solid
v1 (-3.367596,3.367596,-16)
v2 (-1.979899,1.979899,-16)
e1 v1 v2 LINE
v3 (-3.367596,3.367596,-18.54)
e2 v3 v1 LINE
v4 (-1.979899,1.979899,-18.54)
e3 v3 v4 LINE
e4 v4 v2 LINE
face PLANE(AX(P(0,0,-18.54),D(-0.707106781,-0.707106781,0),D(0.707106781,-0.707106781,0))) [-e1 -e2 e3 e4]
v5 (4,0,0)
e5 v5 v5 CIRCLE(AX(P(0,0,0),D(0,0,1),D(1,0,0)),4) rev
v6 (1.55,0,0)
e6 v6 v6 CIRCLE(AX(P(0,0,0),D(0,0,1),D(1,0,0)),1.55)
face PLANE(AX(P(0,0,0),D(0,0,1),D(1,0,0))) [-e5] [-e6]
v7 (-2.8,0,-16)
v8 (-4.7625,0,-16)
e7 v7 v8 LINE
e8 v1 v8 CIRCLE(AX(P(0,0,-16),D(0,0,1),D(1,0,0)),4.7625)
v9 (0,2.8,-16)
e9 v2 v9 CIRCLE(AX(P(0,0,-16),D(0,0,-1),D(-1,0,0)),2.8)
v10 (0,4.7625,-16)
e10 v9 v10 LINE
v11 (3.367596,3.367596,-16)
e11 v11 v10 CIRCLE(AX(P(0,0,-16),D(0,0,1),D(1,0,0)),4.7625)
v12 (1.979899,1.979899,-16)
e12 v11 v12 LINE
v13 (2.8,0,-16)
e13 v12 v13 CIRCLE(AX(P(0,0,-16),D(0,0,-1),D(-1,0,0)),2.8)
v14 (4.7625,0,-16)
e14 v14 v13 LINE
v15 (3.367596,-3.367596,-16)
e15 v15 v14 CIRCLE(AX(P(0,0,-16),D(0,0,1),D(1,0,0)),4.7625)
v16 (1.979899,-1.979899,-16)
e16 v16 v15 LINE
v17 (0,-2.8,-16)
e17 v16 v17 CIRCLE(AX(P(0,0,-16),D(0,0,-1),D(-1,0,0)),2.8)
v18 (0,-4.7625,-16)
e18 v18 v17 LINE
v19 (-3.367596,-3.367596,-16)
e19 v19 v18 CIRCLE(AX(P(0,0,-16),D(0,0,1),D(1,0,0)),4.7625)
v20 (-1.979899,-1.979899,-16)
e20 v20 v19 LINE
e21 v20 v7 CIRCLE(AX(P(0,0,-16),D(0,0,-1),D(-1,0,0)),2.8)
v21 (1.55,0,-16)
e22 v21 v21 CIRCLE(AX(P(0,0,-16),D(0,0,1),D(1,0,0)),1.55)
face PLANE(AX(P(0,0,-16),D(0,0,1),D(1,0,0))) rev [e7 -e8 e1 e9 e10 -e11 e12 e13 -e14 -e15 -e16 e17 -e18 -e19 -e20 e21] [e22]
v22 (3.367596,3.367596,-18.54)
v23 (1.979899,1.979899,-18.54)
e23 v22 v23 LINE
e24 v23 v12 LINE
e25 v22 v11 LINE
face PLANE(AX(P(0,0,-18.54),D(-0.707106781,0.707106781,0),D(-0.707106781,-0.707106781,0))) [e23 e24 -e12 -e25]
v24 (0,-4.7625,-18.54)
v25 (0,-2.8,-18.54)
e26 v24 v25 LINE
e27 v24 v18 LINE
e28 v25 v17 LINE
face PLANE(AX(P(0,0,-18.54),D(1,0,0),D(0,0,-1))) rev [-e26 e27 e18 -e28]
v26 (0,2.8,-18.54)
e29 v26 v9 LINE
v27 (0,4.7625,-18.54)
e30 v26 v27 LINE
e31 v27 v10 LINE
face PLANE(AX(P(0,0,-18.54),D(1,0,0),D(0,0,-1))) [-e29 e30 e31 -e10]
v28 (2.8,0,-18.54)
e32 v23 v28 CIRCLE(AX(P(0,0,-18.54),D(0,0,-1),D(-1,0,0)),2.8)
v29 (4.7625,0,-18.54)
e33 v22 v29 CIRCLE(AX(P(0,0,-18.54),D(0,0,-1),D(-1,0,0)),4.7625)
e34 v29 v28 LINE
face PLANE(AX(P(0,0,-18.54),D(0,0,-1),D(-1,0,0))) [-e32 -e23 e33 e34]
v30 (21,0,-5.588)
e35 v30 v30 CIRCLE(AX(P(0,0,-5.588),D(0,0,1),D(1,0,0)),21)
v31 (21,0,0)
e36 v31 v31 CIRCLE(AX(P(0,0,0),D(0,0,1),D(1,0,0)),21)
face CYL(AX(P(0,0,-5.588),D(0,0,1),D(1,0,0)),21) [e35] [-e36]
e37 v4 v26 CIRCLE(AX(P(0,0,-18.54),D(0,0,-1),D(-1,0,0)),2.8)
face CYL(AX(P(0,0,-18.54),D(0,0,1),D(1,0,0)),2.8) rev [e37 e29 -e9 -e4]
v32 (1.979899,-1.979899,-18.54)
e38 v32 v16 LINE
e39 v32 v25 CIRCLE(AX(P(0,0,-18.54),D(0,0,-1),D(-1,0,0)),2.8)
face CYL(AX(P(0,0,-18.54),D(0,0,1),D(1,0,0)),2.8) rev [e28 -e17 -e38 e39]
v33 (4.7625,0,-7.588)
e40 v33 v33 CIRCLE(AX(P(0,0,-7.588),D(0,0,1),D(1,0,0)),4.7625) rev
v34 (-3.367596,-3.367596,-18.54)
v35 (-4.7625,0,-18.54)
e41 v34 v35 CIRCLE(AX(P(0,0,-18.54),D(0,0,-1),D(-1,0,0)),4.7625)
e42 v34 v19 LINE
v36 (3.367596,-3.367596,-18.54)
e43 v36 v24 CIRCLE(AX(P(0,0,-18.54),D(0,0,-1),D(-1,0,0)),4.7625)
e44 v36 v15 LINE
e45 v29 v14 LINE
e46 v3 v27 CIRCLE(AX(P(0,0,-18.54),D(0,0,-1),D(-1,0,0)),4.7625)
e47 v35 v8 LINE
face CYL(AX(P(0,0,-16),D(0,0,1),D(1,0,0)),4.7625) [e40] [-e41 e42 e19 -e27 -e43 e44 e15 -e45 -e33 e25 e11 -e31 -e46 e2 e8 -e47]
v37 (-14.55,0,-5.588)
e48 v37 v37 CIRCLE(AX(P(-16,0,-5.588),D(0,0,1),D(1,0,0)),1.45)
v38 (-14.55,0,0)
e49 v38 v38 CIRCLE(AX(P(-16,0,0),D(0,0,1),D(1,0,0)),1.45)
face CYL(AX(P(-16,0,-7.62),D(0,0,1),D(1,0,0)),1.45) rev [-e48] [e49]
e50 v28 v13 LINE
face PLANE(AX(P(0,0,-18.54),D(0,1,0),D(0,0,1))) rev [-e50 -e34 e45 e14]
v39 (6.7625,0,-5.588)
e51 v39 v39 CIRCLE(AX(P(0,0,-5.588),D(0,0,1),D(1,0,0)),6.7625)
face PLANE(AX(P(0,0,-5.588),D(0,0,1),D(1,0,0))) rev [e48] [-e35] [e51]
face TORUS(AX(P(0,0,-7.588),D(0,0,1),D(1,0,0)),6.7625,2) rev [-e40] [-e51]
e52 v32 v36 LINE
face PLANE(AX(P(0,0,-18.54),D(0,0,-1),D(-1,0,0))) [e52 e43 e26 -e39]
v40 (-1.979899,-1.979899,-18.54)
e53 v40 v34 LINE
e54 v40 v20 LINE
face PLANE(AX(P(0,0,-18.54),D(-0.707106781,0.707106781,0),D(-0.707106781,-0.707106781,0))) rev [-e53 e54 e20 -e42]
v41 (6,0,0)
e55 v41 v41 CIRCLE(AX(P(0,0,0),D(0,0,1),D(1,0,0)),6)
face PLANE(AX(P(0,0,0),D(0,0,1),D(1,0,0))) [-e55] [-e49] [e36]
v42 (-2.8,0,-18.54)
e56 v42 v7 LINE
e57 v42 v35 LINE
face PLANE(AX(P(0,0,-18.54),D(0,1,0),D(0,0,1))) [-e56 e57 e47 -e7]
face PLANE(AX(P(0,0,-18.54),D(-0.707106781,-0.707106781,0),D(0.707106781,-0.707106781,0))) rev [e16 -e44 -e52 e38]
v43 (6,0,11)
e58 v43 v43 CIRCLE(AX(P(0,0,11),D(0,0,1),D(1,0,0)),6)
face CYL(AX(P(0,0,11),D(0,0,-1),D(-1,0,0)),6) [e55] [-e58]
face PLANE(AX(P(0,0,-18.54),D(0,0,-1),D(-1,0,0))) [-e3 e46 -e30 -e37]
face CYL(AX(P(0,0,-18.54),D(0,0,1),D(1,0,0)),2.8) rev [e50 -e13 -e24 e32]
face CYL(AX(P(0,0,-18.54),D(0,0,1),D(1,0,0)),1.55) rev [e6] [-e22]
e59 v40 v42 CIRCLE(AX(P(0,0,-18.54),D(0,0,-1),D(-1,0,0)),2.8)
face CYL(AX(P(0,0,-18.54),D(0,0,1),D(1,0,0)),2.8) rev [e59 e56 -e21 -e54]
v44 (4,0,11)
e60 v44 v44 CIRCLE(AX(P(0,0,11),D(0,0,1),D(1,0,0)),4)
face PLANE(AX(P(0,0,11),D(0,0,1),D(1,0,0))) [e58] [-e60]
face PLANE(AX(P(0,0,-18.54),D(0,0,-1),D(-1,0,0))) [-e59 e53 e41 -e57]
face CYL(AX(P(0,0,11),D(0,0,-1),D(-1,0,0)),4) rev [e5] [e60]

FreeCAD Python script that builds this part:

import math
import FreeCAD as App
import Part
import Sketcher
Q = App.Units.Quantity


def edges_at(feature, points):
    """Names of the edges that pass closest to the given points."""
    edges = feature.Shape.Edges
    near = lambda p: min(range(len(edges)), key=lambda i: edges[i].distToShape(Part.Vertex(*p))[0])
    return sorted({f"Edge{near(p) + 1}" for p in points})

doc = App.newDocument("Part")
body = doc.addObject("PartDesign::Body", "Body")

# Sketch on XY plane
sketch1 = body.newObject("Sketcher::SketchObject", "Sketch")
sketch1.AttachmentSupport = (doc.getObject("XY_Plane"), [""])
sketch1.MapMode = "FlatFace"
sketch1.addGeometry(Part.Circle(App.Vector(0, 0, 0), App.Vector(0, 0, 1), 4.8), False)
sketch1.addConstraint(Sketcher.Constraint("Coincident", 0, 3, -1, 1))
sketch1.addConstraint(Sketcher.Constraint("Diameter", 0, Q("9.525 mm")))
pad1 = body.newObject("PartDesign::Pad", "Pad")
pad1.Profile = sketch1
pad1.Length = 16
pad1.Reversed = True

# Sketch on XY plane
sketch2 = body.newObject("Sketcher::SketchObject", "Sketch001")
sketch2.AttachmentSupport = (doc.getObject("XY_Plane"), [""])
sketch2.MapMode = "FlatFace"
sketch2.addGeometry(Part.Circle(App.Vector(0, 0, 0), App.Vector(0, 0, 1), 21), False)
sketch2.addConstraint(Sketcher.Constraint("Coincident", 0, 3, -1, 1))
sketch2.addConstraint(Sketcher.Constraint("Diameter", 0, Q("42 mm")))
pad2 = body.newObject("PartDesign::Pad", "Pad001")
pad2.Profile = sketch2
pad2.Length = 5.588
pad2.Reversed = True

# Sketch on XY plane
sketch3 = body.newObject("Sketcher::SketchObject", "Sketch002")
sketch3.AttachmentSupport = (doc.getObject("XY_Plane"), [""])
sketch3.MapMode = "FlatFace"
sketch3.AttachmentOffset = App.Placement(App.Vector(0, 0, -16), App.Rotation())
sketch3.addGeometry(Part.LineSegment(App.Vector(-2, -2, 0), App.Vector(-3.4, -3.4, 0)), False)
sketch3.addGeometry(Part.ArcOfCircle(Part.Circle(App.Vector(0, 0, 0), App.Vector(0, 0, 1), 4.8), math.radians(180), math.radians(225)), False)
sketch3.addGeometry(Part.LineSegment(App.Vector(-4.8, 0, 0), App.Vector(-2.8, 0, 0)), False)
sketch3.addGeometry(Part.ArcOfCircle(Part.Circle(App.Vector(0, 0, 0), App.Vector(0, 0, 1), 2.8), math.radians(180), math.radians(225)), False)
sketch3.addGeometry(Part.ArcOfCircle(Part.Circle(App.Vector(0, 0, 0), App.Vector(0, 0, 1), 4.8), math.radians(0), math.radians(45)), False)
sketch3.addGeometry(Part.LineSegment(App.Vector(4.8, 0, 0), App.Vector(2.8, 0, 0)), False)
sketch3.addGeometry(Part.ArcOfCircle(Part.Circle(App.Vector(0, 0, 0), App.Vector(0, 0, 1), 2.8), math.radians(0), math.radians(45)), False)
sketch3.addGeometry(Part.LineSegment(App.Vector(2, 2, 0), App.Vector(3.4, 3.4, 0)), False)
sketch3.addGeometry(Part.ArcOfCircle(Part.Circle(App.Vector(0, 0, 0), App.Vector(0, 0, 1), 4.8), math.radians(-90), math.radians(-45)), False)
sketch3.addGeometry(Part.LineSegment(App.Vector(0, -4.8, 0), App.Vector(0, -2.8, 0)), False)
sketch3.addGeometry(Part.ArcOfCircle(Part.Circle(App.Vector(0, 0, 0), App.Vector(0, 0, 1), 2.8), math.radians(-90), math.radians(-45)), False)
sketch3.addGeometry(Part.LineSegment(App.Vector(2, -2, 0), App.Vector(3.4, -3.4, 0)), False)
sketch3.addGeometry(Part.LineSegment(App.Vector(0, 4.8, 0), App.Vector(0, 2.8, 0)), False)
sketch3.addGeometry(Part.ArcOfCircle(Part.Circle(App.Vector(0, 0, 0), App.Vector(0, 0, 1), 2.8), math.radians(90), math.radians(135)), False)
sketch3.addGeometry(Part.LineSegment(App.Vector(-2, 2, 0), App.Vector(-3.4, 3.4, 0)), False)
sketch3.addGeometry(Part.ArcOfCircle(Part.Circle(App.Vector(0, 0, 0), App.Vector(0, 0, 1), 4.8), math.radians(90), math.radians(135)), False)
sketch3.addConstraint(Sketcher.Constraint("Coincident", 0, 2, 1, 2))
sketch3.addConstraint(Sketcher.Constraint("Coincident", 1, 1, 2, 1))
sketch3.addConstraint(Sketcher.Constraint("Coincident", 2, 2, 3, 1))
sketch3.addConstraint(Sketcher.Constraint("Coincident", 3, 2, 0, 1))
sketch3.addConstraint(Sketcher.Constraint("Coincident", 4, 1, 5, 1))
sketch3.addConstraint(Sketcher.Constraint("Coincident", 5, 2, 6, 1))
sketch3.addConstraint(Sketcher.Constraint("Coincident", 6, 2, 7, 1))
sketch3.addConstraint(Sketcher.Constraint("Coincident", 7, 2, 4, 2))
sketch3.addConstraint(Sketcher.Constraint("Coincident", 8, 1, 9, 1))
sketch3.addConstraint(Sketcher.Constraint("Coincident", 9, 2, 10, 1))
sketch3.addConstraint(Sketcher.Constraint("Coincident", 10, 2, 11, 1))
sketch3.addConstraint(Sketcher.Constraint("Coincident", 11, 2, 8, 2))
sketch3.addConstraint(Sketcher.Constraint("Coincident", 12, 2, 13, 1))
sketch3.addConstraint(Sketcher.Constraint("Coincident", 13, 2, 14, 1))
sketch3.addConstraint(Sketcher.Constraint("Coincident", 14, 2, 15, 2))
sketch3.addConstraint(Sketcher.Constraint("Coincident", 15, 1, 12, 1))
sketch3.addConstraint(Sketcher.Constraint("Horizontal", 2))
sketch3.addConstraint(Sketcher.Constraint("Horizontal", 5))
sketch3.addConstraint(Sketcher.Constraint("Vertical", 9))
sketch3.addConstraint(Sketcher.Constraint("Vertical", 12))
sketch3.addConstraint(Sketcher.Constraint("Coincident", 1, 3, -1, 1))
sketch3.addConstraint(Sketcher.Constraint("Coincident", 3, 3, -1, 1))
sketch3.addConstraint(Sketcher.Constraint("Coincident", 4, 3, -1, 1))
sketch3.addConstraint(Sketcher.Constraint("Coincident", 6, 3, -1, 1))
sketch3.addConstraint(Sketcher.Constraint("Coincident", 8, 3, -1, 1))
sketch3.addConstraint(Sketcher.Constraint("Coincident", 10, 3, -1, 1))
sketch3.addConstraint(Sketcher.Constraint("Coincident", 13, 3, -1, 1))
sketch3.addConstraint(Sketcher.Constraint("Coincident", 15, 3, -1, 1))
sketch3.addConstraint(Sketcher.Constraint("Equal", 1, 4))
sketch3.addConstraint(Sketcher.Constraint("Equal", 3, 6))
sketch3.addConstraint(Sketcher.Constraint("Equal", 4, 8))
sketch3.addConstraint(Sketcher.Constraint("Equal", 6, 10))
sketch3.addConstraint(Sketcher.Constraint("Equal", 10, 13))
sketch3.addConstraint(Sketcher.Constraint("Equal", 8, 15))
sketch3.addConstraint(Sketcher.Constraint("PointOnObject", 1, 1, -1))
sketch3.addConstraint(Sketcher.Constraint("PointOnObject", 4, 1, -1))
sketch3.addConstraint(Sketcher.Constraint("PointOnObject", 8, 1, -2))
sketch3.addConstraint(Sketcher.Constraint("PointOnObject", 12, 2, -2))
sketch3.addConstraint(Sketcher.Constraint("Parallel", 0, 7))
sketch3.addConstraint(Sketcher.Constraint("Perpendicular", 7, 11))
sketch3.addConstraint(Sketcher.Constraint("Parallel", 11, 14))
sketch3.addConstraint(Sketcher.Constraint("Horizontal", 3, 2, 10, 2))
sketch3.addConstraint(Sketcher.Constraint("Horizontal", 0, 2, 11, 2))
sketch3.addConstraint(Sketcher.Constraint("Horizontal", 6, 2, 13, 2))
sketch3.addConstraint(Sketcher.Constraint("Vertical", 6, 2, 10, 2))
sketch3.addConstraint(Sketcher.Constraint("Radius", 3, Q("2.8 mm")))
sketch3.addConstraint(Sketcher.Constraint("Radius", 1, Q("4.7625 mm")))
sketch3.addConstraint(Sketcher.Constraint("DistanceX", 3, 2, -1, 1, Q("1.979899 mm")))
pad3 = body.newObject("PartDesign::Pad", "Pad002")
pad3.Profile = sketch3
pad3.Length = 2.54
pad3.Reversed = True

# Sketch on XY plane
sketch4 = body.newObject("Sketcher::SketchObject", "Sketch003")
sketch4.AttachmentSupport = (doc.getObject("XY_Plane"), [""])
sketch4.MapMode = "FlatFace"
sketch4.addGeometry(Part.Circle(App.Vector(0, 0, 0), App.Vector(0, 0, 1), 1.6), False)
sketch4.addConstraint(Sketcher.Constraint("Coincident", 0, 3, -1, 1))
sketch4.addConstraint(Sketcher.Constraint("Diameter", 0, Q("3.1 mm")))
pocket1 = body.newObject("PartDesign::Pocket", "Pocket")
pocket1.Profile = sketch4
pocket1.Type = "ThroughAll"

# Sketch on XY plane
sketch5 = body.newObject("Sketcher::SketchObject", "Sketch004")
sketch5.AttachmentSupport = (doc.getObject("XY_Plane"), [""])
sketch5.MapMode = "FlatFace"
sketch5.addGeometry(Part.Circle(App.Vector(-16, 0, 0), App.Vector(0, 0, 1), 1.4), False)
sketch5.addConstraint(Sketcher.Constraint("PointOnObject", 0, 3, -1))
sketch5.addConstraint(Sketcher.Constraint("Diameter", 0, Q("2.9 mm")))
sketch5.addConstraint(Sketcher.Constraint("DistanceX", 0, 3, -1, 1, Q("16 mm")))
pocket2 = body.newObject("PartDesign::Pocket", "Pocket001")
pocket2.Profile = sketch5
pocket2.Length = 7.62

# Sketch on XY plane
sketch6 = body.newObject("Sketcher::SketchObject", "Sketch005")
sketch6.AttachmentSupport = (doc.getObject("XY_Plane"), [""])
sketch6.MapMode = "FlatFace"
sketch6.addGeometry(Part.Circle(App.Vector(0, 0, 0), App.Vector(0, 0, 1), 6), False)
sketch6.addGeometry(Part.Circle(App.Vector(0, 0, 0), App.Vector(0, 0, 1), 4), False)
sketch6.addConstraint(Sketcher.Constraint("Coincident", 0, 3, -1, 1))
sketch6.addConstraint(Sketcher.Constraint("Coincident", 1, 3, -1, 1))
sketch6.addConstraint(Sketcher.Constraint("Diameter", 0, Q("12 mm")))
sketch6.addConstraint(Sketcher.Constraint("Diameter", 1, Q("8 mm")))
pad4 = body.newObject("PartDesign::Pad", "Pad003")
pad4.Profile = sketch6
pad4.Length = 11
doc.recompute()

fillet = body.newObject("PartDesign::Fillet", "Fillet")
fillet.Base = (pad4, edges_at(pad4, [(-4.763, 0, -5.588)]))
fillet.Radius = 2

doc.recompute()
